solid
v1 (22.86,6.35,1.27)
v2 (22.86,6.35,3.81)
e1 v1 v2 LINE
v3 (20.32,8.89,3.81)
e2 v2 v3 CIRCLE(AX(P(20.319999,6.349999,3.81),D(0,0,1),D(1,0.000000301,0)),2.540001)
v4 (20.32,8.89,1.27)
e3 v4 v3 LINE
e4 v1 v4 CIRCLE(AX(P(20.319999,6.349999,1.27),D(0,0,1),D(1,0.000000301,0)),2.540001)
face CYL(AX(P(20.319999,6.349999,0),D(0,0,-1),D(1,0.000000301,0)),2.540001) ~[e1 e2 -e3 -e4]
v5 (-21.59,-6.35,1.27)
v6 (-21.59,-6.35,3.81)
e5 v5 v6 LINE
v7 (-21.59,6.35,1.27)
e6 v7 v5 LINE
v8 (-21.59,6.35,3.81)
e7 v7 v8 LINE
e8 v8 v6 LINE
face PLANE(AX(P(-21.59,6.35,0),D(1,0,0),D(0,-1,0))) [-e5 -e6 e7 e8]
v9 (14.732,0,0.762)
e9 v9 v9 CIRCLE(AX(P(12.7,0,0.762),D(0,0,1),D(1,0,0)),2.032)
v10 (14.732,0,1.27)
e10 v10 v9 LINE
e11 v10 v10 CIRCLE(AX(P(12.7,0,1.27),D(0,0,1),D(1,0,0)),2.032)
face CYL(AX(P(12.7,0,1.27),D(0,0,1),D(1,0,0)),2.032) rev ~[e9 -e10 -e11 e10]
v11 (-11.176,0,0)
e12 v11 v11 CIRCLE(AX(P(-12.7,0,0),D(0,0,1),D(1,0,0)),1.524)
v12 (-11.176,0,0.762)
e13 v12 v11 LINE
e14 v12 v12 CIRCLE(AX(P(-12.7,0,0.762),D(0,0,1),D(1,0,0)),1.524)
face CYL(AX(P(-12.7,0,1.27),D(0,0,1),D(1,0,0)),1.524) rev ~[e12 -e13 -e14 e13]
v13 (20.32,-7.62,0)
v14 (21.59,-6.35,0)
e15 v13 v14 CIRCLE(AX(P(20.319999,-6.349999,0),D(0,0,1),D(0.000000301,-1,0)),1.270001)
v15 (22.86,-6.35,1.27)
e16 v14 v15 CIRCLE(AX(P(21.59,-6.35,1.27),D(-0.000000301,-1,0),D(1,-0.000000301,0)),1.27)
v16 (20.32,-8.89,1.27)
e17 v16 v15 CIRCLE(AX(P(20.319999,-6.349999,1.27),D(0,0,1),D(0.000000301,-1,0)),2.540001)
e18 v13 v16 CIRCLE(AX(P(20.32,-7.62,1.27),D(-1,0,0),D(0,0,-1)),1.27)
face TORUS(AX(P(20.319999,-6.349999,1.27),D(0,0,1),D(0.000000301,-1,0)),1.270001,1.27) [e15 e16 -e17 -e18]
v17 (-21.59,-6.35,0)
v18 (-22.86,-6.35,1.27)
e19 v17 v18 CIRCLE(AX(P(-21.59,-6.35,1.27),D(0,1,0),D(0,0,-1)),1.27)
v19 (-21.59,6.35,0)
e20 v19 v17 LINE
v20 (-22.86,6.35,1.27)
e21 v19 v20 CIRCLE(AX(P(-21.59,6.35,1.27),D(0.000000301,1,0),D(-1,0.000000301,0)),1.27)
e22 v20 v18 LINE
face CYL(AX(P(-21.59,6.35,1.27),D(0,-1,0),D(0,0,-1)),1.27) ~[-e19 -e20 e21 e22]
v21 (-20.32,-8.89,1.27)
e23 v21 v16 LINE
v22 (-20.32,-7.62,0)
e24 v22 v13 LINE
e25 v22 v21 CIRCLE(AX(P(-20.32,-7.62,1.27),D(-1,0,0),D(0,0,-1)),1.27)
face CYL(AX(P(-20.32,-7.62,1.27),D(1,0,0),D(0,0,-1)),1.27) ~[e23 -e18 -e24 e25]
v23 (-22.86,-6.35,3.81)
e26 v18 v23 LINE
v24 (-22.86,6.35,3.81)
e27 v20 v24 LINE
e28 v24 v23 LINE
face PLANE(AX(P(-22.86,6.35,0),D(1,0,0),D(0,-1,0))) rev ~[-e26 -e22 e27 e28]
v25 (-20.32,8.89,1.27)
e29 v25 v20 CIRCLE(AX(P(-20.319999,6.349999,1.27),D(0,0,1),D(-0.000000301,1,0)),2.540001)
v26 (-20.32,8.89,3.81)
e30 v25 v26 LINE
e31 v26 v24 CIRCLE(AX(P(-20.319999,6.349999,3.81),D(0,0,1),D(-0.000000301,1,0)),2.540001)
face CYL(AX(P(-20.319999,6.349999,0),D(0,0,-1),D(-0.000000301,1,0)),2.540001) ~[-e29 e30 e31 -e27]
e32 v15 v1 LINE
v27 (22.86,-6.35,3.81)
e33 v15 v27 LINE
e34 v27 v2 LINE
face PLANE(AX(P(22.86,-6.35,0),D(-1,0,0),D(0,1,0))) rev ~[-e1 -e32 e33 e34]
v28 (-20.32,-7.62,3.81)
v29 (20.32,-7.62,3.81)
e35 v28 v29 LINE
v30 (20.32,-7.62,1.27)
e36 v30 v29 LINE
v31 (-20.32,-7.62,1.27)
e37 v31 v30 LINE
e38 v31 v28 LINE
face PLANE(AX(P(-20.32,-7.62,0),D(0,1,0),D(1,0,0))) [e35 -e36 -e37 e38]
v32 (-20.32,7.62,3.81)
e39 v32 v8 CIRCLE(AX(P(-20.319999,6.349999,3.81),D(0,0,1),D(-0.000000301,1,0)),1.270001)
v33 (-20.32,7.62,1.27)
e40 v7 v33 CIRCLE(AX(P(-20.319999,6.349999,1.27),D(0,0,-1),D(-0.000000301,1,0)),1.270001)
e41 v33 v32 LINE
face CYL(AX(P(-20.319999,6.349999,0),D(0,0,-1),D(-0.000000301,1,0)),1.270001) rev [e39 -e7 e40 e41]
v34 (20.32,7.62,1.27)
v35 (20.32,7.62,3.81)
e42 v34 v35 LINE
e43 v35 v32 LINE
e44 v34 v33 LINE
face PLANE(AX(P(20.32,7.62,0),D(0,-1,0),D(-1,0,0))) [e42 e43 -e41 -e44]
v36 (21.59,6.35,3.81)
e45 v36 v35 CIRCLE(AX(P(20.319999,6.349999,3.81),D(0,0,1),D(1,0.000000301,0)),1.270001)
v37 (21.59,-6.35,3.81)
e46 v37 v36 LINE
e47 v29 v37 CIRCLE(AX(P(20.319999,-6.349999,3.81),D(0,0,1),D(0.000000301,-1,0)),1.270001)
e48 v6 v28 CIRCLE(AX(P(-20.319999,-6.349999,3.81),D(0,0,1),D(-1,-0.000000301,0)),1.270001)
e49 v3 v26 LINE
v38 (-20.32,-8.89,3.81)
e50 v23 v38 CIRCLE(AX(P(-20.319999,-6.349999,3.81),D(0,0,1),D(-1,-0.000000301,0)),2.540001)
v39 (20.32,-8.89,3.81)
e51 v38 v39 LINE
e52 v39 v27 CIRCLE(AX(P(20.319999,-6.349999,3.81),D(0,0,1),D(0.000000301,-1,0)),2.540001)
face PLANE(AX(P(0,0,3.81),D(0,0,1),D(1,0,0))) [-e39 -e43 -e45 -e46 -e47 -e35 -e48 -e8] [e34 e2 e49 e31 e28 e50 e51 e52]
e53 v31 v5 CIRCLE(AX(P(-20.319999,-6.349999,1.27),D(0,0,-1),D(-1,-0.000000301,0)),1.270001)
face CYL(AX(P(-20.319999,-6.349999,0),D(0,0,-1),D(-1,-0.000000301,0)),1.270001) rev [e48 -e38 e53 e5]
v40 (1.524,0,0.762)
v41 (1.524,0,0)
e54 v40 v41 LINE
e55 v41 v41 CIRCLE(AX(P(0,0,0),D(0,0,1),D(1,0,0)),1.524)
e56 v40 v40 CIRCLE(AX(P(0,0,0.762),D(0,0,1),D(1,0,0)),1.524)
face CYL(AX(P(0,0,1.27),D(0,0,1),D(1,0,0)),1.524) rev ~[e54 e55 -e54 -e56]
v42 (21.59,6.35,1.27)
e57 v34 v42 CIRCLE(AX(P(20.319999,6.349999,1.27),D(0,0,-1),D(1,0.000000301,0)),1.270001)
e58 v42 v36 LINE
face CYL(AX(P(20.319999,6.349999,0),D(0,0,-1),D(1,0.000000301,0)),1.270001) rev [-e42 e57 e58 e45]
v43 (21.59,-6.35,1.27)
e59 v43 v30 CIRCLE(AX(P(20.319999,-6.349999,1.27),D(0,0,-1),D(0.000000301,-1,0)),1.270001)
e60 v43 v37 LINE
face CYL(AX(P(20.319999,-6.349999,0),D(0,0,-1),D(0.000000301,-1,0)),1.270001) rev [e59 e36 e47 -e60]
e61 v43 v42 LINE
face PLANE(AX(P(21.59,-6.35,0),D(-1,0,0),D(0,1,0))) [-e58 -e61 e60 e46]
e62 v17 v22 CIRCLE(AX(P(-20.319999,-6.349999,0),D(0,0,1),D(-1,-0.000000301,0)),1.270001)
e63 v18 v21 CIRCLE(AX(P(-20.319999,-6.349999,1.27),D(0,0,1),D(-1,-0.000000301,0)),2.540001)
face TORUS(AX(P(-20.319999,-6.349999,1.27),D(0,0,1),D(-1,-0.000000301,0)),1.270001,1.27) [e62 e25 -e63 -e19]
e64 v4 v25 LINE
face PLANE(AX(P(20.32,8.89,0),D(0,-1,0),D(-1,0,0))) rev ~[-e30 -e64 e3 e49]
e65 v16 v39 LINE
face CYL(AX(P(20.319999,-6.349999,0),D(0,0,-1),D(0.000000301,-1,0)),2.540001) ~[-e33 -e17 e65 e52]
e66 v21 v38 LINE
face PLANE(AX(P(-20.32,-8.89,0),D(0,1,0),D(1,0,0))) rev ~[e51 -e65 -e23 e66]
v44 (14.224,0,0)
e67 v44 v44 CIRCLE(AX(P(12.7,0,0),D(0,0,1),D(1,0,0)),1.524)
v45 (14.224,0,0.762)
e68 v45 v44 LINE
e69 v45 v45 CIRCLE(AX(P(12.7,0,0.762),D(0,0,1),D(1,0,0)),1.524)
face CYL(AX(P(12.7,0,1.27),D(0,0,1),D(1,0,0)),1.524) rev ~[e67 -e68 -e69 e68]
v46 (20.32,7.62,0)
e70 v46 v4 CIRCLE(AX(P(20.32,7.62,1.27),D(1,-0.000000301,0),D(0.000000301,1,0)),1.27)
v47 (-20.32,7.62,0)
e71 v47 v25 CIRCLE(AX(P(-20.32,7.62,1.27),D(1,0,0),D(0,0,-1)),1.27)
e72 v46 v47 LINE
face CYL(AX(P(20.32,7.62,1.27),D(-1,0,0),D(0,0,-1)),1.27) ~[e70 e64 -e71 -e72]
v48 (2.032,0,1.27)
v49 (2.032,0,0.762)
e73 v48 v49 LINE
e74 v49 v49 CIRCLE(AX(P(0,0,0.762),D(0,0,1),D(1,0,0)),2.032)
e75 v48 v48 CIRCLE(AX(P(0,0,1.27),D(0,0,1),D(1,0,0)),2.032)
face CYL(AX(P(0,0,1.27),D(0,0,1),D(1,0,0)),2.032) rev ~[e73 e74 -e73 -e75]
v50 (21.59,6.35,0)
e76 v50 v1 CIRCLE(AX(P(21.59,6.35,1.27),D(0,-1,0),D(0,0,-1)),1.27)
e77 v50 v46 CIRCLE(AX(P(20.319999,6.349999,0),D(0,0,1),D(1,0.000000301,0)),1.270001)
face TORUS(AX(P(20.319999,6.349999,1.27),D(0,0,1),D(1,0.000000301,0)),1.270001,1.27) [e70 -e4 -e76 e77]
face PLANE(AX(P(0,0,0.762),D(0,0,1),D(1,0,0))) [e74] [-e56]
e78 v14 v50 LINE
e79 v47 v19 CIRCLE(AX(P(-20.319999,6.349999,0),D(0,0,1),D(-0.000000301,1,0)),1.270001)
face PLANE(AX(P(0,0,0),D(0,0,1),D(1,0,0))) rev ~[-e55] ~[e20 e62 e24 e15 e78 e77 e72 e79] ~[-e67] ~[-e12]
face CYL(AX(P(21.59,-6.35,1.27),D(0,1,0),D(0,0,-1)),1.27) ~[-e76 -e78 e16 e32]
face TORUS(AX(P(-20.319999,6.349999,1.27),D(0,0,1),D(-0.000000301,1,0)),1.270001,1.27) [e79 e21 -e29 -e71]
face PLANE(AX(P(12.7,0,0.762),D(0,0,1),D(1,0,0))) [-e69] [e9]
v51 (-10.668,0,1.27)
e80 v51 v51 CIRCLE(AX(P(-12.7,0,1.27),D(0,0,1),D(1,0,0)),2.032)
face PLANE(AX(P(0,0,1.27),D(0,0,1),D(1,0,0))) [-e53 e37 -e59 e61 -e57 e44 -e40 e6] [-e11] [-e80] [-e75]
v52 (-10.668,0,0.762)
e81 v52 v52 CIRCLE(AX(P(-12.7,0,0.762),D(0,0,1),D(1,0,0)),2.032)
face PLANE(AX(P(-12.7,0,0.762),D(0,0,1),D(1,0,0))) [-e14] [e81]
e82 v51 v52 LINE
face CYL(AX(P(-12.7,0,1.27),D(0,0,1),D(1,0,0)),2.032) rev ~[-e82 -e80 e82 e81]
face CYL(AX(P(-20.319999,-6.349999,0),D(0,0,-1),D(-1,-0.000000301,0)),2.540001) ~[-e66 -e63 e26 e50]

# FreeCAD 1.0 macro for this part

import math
import FreeCAD as App
import Part
import Sketcher
from FreeCAD import Vector
Q = App.Units.Quantity


def edges_at(feature, points):
    """Names of the edges that pass closest to the given points."""
    edges = feature.Shape.Edges
    near = lambda p: min(range(len(edges)), key=lambda i: edges[i].distToShape(Part.Vertex(*p))[0])
    return sorted({f"Edge{near(p) + 1}" for p in points})


def faces_at(feature, points):
    """Names of the faces that lie closest to the given points."""
    faces = feature.Shape.Faces
    near = lambda p: min(range(len(faces)), key=lambda i: faces[i].distToShape(Part.Vertex(*p))[0])
    return sorted({f"Face{near(p) + 1}" for p in points})

doc = App.newDocument("Part")
body = doc.addObject("PartDesign::Body", "Body")

sketch1 = body.newObject("Sketcher::SketchObject", "Sketch")
sketch1.AttachmentSupport = (doc.getObject("XY_Plane"), [""])
sketch1.MapMode = "FlatFace"
sketch1.addGeometry(Part.ArcOfCircle(Part.Circle(Vector(20.319999, 6.349999, 0), Vector(0, 0, 1), 2.540001), math.radians(0.000017), math.radians(89.999983)), False)
sketch1.addGeometry(Part.LineSegment(Vector(20.32, 8.89, 0), Vector(-20.32, 8.89, 0)), False)
sketch1.addGeometry(Part.ArcOfCircle(Part.Circle(Vector(-20.319999, 6.349999, 0), Vector(0, 0, 1), 2.540001), math.radians(90.000017), math.radians(179.999983)), False)
sketch1.addGeometry(Part.LineSegment(Vector(-22.86, 6.35, 0), Vector(-22.86, -6.35, 0)), False)
sketch1.addGeometry(Part.ArcOfCircle(Part.Circle(Vector(-20.319999, -6.349999, 0), Vector(0, 0, 1), 2.540001), math.radians(-179.999983), math.radians(-90.000017)), False)
sketch1.addGeometry(Part.LineSegment(Vector(-20.32, -8.89, 0), Vector(20.32, -8.89, 0)), False)
sketch1.addGeometry(Part.ArcOfCircle(Part.Circle(Vector(20.319999, -6.349999, 0), Vector(0, 0, 1), 2.540001), math.radians(-89.999983), math.radians(-0.000017)), False)
sketch1.addGeometry(Part.LineSegment(Vector(22.86, -6.35, 0), Vector(22.86, 6.35, 0)), False)
sketch1.addConstraint(Sketcher.Constraint("Tangent", 0, 2, 1, 1))
sketch1.addConstraint(Sketcher.Constraint("Tangent", 1, 2, 2, 1))
sketch1.addConstraint(Sketcher.Constraint("Tangent", 2, 2, 3, 1))
sketch1.addConstraint(Sketcher.Constraint("Tangent", 3, 2, 4, 1))
sketch1.addConstraint(Sketcher.Constraint("Tangent", 4, 2, 5, 1))
sketch1.addConstraint(Sketcher.Constraint("Tangent", 5, 2, 6, 1))
sketch1.addConstraint(Sketcher.Constraint("Tangent", 6, 2, 7, 1))
sketch1.addConstraint(Sketcher.Constraint("Tangent", 7, 2, 0, 1))
sketch1.addConstraint(Sketcher.Constraint("Horizontal", 1))
sketch1.addConstraint(Sketcher.Constraint("Vertical", 3))
sketch1.addConstraint(Sketcher.Constraint("Horizontal", 5))
sketch1.addConstraint(Sketcher.Constraint("Vertical", 7))
sketch1.addConstraint(Sketcher.Constraint("Equal", 0, 2))
sketch1.addConstraint(Sketcher.Constraint("Equal", 2, 4))
sketch1.addConstraint(Sketcher.Constraint("Equal", 4, 6))
sketch1.addConstraint(Sketcher.Constraint("Symmetric", 0, 3, 4, 3, -1, 1))
sketch1.addConstraint(Sketcher.Constraint("Radius", 0, Q("0.1 in")))
sketch1.addConstraint(Sketcher.Constraint("DistanceX", 1, 2, 1, 1, Q("1.6 in")))
sketch1.addConstraint(Sketcher.Constraint("DistanceY", 3, 2, 3, 1, Q("0.5 in")))
pad1 = body.newObject("PartDesign::Pad", "Pad")
pad1.Profile = sketch1
pad1.Length = Q("0.15 in")
doc.recompute()

thickness = body.newObject("PartDesign::Thickness", "Thickness")
thickness.Base = (pad1, faces_at(pad1, [(0, 0, 3.81)]))
thickness.Value = Q("0.05 in")
thickness.Reversed = True
thickness.Join = "Arc"

sketch2 = body.newObject("Sketcher::SketchObject", "Sketch001")
sketch2.AttachmentSupport = (doc.getObject("XY_Plane"), [""])
sketch2.MapMode = "FlatFace"
sketch2.AttachmentOffset = App.Placement(Vector(0, 0, 0.05 * 25.4), App.Rotation())
sketch2.addGeometry(Part.Circle(Vector(-12.7, 0, 0), Vector(0, 0, 1), 1.524), False)
sketch2.addGeometry(Part.Circle(Vector(-12.7, 50.8, 0), Vector(0, 0, 1), 1.524), False)
sketch2.addGeometry(Part.Circle(Vector(0, 0, 0), Vector(0, 0, 1), 1.524), False)
sketch2.addGeometry(Part.Circle(Vector(0, 50.8, 0), Vector(0, 0, 1), 1.524), False)
sketch2.addGeometry(Part.Circle(Vector(12.7, 0, 0), Vector(0, 0, 1), 1.524), False)
sketch2.addGeometry(Part.Circle(Vector(12.7, 50.8, 0), Vector(0, 0, 1), 1.524), False)
sketch2.addConstraint(Sketcher.Constraint("Coincident", 2, 3, -1, 1))
sketch2.addConstraint(Sketcher.Constraint("Equal", 0, 1))
sketch2.addConstraint(Sketcher.Constraint("Equal", 1, 2))
sketch2.addConstraint(Sketcher.Constraint("Equal", 2, 3))
sketch2.addConstraint(Sketcher.Constraint("Equal", 3, 4))
sketch2.addConstraint(Sketcher.Constraint("Equal", 4, 5))
sketch2.addConstraint(Sketcher.Constraint("Symmetric", 0, 3, 4, 3, -1, 1))
sketch2.addConstraint(Sketcher.Constraint("Symmetric", 1, 3, 5, 3, -2))
sketch2.addConstraint(Sketcher.Constraint("PointOnObject", 0, 3, -1))
sketch2.addConstraint(Sketcher.Constraint("PointOnObject", 3, 3, -2))
sketch2.addConstraint(Sketcher.Constraint("Horizontal", 1, 3, 3, 3))
sketch2.addConstraint(Sketcher.Constraint("Vertical", 0, 3, 1, 3))
sketch2.addConstraint(Sketcher.Constraint("Diameter", 0, Q("0.12 in")))
sketch2.addConstraint(Sketcher.Constraint("DistanceY", -1, 1, 1, 3, Q("2 in")))
sketch2.addConstraint(Sketcher.Constraint("DistanceX", 0, 3, 4, 3, Q("1 in")))
pocket1 = body.newObject("PartDesign::Pocket", "Pocket")
pocket1.Profile = sketch2
pocket1.Length = Q("1 in")

sketch3 = body.newObject("Sketcher::SketchObject", "Sketch002")
sketch3.AttachmentSupport = (doc.getObject("XY_Plane"), [""])
sketch3.MapMode = "FlatFace"
sketch3.AttachmentOffset = App.Placement(Vector(0, 0, 0.05 * 25.4), App.Rotation())
sketch3.addGeometry(Part.Circle(Vector(-12.7, 0, 0), Vector(0, 0, 1), 2.032), False)
sketch3.addGeometry(Part.Circle(Vector(0, 0, 0), Vector(0, 0, 1), 2.032), False)
sketch3.addGeometry(Part.Circle(Vector(12.7, 0, 0), Vector(0, 0, 1), 2.032), False)
sketch3.addConstraint(Sketcher.Constraint("Coincident", 1, 3, -1, 1))
sketch3.addConstraint(Sketcher.Constraint("Equal", 0, 1))
sketch3.addConstraint(Sketcher.Constraint("Equal", 1, 2))
sketch3.addConstraint(Sketcher.Constraint("Symmetric", 0, 3, 2, 3, -1, 1))
sketch3.addConstraint(Sketcher.Constraint("PointOnObject", 0, 3, -1))
sketch3.addConstraint(Sketcher.Constraint("Diameter", 0, Q("0.16 in")))
sketch3.addConstraint(Sketcher.Constraint("DistanceX", 0, 3, 2, 3, Q("1 in")))
pocket2 = body.newObject("PartDesign::Pocket", "Pocket001")
pocket2.Profile = sketch3
pocket2.Length = Q("0.02 in")
doc.recompute()

fillet = body.newObject("PartDesign::Fillet", "Fillet")
fillet.Base = (pocket2, edges_at(pocket2, [(0, -8.89, 0)]))
fillet.Radius = Q("0.05 in")

doc.recompute()
